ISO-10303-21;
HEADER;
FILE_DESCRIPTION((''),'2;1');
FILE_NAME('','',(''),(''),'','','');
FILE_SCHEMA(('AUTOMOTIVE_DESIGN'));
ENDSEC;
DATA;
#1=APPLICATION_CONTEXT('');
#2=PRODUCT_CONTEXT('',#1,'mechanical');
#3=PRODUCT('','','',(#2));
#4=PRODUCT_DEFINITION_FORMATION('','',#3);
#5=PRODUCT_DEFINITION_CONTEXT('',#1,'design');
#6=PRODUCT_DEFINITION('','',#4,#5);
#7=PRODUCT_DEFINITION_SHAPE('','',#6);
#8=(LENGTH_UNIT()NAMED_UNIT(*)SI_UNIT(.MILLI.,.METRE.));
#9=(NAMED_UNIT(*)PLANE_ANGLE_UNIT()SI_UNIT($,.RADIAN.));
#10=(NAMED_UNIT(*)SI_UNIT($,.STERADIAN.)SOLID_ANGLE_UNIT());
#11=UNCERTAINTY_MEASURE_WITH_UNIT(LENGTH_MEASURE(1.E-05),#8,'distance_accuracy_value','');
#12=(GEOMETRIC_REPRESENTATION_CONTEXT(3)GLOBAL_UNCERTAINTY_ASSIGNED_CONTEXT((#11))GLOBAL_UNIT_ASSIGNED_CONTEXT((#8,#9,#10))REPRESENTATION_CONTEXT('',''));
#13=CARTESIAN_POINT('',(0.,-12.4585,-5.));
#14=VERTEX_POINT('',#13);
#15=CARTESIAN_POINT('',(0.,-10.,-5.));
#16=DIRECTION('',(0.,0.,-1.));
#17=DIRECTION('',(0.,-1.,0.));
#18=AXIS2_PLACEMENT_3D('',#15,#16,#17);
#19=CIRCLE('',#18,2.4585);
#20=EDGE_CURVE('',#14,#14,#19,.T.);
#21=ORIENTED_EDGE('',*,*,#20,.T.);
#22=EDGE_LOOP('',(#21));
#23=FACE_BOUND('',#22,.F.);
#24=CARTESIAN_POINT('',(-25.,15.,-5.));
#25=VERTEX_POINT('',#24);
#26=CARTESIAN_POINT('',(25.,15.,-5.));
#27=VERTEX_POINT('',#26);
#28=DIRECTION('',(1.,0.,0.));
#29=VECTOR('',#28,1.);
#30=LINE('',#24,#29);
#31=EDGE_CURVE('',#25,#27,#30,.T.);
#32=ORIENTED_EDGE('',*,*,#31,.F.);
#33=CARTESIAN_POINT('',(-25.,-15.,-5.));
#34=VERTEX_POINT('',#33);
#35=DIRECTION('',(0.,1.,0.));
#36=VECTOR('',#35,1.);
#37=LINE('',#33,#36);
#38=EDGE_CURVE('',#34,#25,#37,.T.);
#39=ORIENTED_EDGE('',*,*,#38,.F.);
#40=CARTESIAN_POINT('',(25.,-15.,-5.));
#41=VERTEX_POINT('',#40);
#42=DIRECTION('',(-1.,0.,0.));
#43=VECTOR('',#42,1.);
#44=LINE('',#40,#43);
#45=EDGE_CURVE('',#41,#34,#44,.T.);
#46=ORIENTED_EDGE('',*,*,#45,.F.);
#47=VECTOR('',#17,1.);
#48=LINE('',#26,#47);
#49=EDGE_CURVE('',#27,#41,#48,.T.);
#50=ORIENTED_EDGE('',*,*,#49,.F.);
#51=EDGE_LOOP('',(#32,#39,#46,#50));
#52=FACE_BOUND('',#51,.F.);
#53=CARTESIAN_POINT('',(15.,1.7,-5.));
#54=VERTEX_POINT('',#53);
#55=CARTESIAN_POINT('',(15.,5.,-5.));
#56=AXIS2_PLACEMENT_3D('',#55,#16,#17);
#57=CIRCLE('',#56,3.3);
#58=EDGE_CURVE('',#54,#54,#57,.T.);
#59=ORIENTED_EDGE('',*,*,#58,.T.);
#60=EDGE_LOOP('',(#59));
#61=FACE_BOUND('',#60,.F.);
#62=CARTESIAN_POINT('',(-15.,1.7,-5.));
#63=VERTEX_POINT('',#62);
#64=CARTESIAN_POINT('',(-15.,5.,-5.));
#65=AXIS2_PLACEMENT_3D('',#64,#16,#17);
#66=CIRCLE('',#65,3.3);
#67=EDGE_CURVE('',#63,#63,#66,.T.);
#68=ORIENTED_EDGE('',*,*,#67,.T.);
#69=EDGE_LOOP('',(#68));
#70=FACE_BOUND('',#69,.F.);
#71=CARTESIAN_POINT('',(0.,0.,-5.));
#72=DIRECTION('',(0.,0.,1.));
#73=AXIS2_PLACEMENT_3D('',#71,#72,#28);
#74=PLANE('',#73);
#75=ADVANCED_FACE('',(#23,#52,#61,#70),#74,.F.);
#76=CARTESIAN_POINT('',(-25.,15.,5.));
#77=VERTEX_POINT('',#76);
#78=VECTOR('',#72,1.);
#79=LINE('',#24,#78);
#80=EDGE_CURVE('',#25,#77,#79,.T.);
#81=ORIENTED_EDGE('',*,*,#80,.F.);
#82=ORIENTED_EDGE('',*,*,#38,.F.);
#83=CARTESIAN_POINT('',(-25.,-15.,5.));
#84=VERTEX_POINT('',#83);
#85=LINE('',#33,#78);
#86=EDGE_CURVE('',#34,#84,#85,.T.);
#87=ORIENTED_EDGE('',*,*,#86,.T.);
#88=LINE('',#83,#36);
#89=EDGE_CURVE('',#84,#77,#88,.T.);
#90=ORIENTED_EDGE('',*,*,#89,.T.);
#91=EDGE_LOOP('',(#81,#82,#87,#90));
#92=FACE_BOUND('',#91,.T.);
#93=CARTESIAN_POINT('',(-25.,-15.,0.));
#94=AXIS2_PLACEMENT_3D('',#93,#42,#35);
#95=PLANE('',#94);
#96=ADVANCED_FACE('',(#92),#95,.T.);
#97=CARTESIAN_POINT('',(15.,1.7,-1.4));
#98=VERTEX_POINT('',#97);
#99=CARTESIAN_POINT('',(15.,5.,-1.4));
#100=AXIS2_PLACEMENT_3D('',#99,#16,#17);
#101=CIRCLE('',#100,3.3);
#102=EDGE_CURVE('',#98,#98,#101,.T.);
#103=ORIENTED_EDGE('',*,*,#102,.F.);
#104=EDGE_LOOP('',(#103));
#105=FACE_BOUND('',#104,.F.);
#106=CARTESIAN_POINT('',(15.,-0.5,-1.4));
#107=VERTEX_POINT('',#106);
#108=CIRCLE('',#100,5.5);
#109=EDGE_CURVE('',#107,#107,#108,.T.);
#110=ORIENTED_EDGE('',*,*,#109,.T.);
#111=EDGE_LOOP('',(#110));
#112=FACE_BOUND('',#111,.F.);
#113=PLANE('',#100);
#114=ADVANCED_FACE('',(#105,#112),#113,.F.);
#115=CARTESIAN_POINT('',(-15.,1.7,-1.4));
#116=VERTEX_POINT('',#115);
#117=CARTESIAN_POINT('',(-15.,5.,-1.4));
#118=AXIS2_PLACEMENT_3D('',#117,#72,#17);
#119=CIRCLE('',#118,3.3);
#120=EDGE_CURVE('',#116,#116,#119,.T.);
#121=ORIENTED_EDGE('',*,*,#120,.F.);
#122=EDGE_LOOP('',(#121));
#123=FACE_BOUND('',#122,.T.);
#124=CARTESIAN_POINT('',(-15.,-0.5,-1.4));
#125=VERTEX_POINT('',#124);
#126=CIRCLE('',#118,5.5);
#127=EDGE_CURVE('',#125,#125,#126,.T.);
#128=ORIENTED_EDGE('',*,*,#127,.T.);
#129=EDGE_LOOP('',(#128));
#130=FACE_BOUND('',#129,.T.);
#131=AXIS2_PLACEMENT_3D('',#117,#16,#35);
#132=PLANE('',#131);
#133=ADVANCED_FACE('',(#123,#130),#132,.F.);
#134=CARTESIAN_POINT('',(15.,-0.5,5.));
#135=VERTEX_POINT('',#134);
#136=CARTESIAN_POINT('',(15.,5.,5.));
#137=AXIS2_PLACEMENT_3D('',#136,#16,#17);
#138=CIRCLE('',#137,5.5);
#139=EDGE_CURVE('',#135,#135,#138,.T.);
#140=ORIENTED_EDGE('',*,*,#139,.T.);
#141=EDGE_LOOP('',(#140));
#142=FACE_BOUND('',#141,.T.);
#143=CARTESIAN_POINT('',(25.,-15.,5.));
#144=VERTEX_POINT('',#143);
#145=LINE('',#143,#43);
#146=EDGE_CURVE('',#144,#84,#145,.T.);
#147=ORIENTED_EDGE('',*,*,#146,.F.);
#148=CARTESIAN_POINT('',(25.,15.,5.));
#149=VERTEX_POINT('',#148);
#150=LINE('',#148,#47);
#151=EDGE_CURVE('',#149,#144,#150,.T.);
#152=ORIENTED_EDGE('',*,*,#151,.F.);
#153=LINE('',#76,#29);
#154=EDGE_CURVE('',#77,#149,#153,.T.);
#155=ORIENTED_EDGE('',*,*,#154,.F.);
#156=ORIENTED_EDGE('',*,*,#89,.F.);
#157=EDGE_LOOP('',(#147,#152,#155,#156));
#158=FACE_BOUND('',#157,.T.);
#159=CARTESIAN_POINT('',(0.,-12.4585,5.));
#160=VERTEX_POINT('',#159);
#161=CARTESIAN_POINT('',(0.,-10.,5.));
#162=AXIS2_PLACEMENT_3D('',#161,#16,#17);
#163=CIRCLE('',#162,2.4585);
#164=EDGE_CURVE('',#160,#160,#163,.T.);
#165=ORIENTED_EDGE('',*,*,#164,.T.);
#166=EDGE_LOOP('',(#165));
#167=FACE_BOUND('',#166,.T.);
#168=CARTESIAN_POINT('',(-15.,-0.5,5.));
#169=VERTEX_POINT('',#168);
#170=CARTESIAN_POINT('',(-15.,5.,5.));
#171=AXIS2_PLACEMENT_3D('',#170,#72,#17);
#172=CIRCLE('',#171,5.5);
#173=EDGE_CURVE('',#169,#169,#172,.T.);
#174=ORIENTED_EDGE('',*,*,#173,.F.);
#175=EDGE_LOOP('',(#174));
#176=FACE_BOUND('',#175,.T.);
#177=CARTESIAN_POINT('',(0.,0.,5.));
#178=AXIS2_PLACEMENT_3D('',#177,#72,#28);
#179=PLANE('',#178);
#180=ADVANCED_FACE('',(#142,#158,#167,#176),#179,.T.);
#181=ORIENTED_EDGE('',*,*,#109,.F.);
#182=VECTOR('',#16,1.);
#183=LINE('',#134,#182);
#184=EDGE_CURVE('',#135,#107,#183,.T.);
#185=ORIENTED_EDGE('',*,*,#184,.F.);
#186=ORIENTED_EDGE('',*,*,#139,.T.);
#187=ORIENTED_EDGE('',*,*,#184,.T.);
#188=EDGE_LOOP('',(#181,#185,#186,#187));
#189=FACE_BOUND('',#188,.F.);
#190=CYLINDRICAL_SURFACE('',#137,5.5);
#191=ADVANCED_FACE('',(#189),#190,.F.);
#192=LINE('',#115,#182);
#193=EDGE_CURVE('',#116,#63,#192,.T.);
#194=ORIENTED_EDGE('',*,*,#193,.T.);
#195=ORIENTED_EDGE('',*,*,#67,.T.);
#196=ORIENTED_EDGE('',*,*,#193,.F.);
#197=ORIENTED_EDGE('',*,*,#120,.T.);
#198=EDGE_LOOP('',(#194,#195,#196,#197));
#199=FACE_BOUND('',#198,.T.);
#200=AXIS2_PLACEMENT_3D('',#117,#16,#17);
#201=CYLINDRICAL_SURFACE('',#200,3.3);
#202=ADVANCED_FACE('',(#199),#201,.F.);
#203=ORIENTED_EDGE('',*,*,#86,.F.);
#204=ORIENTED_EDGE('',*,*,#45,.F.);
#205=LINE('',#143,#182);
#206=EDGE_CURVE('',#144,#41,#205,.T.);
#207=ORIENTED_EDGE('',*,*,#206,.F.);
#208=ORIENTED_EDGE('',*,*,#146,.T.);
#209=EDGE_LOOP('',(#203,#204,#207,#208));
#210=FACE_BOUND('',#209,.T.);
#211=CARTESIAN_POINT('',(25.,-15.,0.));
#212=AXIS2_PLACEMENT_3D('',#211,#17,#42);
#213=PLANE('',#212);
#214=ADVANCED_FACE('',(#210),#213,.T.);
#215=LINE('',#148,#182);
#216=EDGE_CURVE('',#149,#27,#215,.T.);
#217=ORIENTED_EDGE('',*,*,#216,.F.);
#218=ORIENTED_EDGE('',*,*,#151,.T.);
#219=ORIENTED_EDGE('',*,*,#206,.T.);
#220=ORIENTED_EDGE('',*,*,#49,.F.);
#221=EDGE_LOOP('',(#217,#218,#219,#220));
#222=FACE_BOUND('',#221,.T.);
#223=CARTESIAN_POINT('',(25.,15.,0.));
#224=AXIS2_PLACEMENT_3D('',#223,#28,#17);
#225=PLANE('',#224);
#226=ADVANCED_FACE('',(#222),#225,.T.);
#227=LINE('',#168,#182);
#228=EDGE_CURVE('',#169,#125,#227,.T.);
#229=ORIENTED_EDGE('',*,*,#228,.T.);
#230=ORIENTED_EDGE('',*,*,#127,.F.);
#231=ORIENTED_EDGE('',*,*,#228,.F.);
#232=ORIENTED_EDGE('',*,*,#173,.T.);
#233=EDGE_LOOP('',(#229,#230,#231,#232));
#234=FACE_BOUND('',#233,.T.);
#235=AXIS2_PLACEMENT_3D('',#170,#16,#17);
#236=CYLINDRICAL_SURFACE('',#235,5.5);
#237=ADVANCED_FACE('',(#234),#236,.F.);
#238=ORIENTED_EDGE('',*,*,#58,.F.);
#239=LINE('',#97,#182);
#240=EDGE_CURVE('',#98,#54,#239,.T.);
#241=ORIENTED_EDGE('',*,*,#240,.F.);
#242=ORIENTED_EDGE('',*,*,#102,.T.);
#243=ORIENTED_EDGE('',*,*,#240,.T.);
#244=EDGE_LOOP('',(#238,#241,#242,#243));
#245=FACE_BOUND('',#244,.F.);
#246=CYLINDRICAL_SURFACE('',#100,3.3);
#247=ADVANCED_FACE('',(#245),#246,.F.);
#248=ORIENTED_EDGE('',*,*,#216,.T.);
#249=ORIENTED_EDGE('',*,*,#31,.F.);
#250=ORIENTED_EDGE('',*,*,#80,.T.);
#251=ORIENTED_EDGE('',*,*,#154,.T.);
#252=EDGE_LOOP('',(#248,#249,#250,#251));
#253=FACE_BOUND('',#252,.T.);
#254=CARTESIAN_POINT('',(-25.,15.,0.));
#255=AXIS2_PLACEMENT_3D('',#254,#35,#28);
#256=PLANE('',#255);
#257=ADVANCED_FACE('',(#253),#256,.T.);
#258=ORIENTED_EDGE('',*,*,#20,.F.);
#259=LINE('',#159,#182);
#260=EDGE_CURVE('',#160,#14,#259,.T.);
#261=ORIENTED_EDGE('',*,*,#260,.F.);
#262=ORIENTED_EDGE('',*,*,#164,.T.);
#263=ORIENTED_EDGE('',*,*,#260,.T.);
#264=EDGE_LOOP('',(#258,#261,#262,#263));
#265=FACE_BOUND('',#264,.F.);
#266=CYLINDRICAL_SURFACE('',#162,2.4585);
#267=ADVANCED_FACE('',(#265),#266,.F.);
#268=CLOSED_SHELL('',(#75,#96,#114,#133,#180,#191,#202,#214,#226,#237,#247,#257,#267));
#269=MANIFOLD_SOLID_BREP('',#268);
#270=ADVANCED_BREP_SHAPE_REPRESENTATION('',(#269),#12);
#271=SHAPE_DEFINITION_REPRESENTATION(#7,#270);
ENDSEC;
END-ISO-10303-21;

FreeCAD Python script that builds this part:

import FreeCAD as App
import Part
import Sketcher
from FreeCAD import Vector
Q = App.Units.Quantity


def add_polygon(sketch, points):
    """Adds a closed chain of lines whose ends are joined by coincident constraints."""
    first, n = sketch.GeometryCount, len(points)
    for a, b in zip(points, points[1:] + points[:1]):
        sketch.addGeometry(Part.LineSegment(App.Vector(*a, 0), App.Vector(*b, 0)), False)
    for i in range(n):
        sketch.addConstraint(Sketcher.Constraint("Coincident", first + i, 2, first + (i + 1) % n, 1))

doc = App.newDocument("Part")
body = doc.addObject("PartDesign::Body", "Body")

sketch1 = body.newObject("Sketcher::SketchObject", "Sketch")
sketch1.AttachmentSupport = (doc.getObject("XY_Plane"), [""])
sketch1.MapMode = "FlatFace"
add_polygon(sketch1, [(25, 15), (-25, 15), (-25, -15), (25, -15)])
sketch1.addConstraint(Sketcher.Constraint("Horizontal", 0))
sketch1.addConstraint(Sketcher.Constraint("Vertical", 1))
sketch1.addConstraint(Sketcher.Constraint("Horizontal", 2))
sketch1.addConstraint(Sketcher.Constraint("Vertical", 3))
sketch1.addConstraint(Sketcher.Constraint("Symmetric", 0, 2, 2, 2, -1, 1))
sketch1.addConstraint(Sketcher.Constraint("DistanceX", 0, 2, 0, 1, Q("50 mm")))
sketch1.addConstraint(Sketcher.Constraint("DistanceY", 1, 2, 1, 1, Q("30 mm")))
pad1 = body.newObject("PartDesign::Pad", "Pad")
pad1.Profile = sketch1
pad1.Length = 10
pad1.Midplane = True

sketch2 = body.newObject("Sketcher::SketchObject", "Sketch001")
sketch2.AttachmentSupport = (doc.getObject("XY_Plane"), [""])
sketch2.MapMode = "FlatFace"
sketch2.AttachmentOffset = App.Placement(Vector(0, 0, 5), App.Rotation())
sketch2.addGeometry(Part.Circle(Vector(0, -10, 0), Vector(0, 0, 1), 2.5), False)
sketch2.addConstraint(Sketcher.Constraint("PointOnObject", 0, 3, -2))
sketch2.addConstraint(Sketcher.Constraint("Diameter", 0, Q("4.917 mm")))
sketch2.addConstraint(Sketcher.Constraint("DistanceY", 0, 3, -1, 1, Q("10 mm")))
doc.recompute()
hole = body.newObject("PartDesign::Hole", "Hole")
hole.Profile = sketch2
hole.ThreadType = "None"
hole.Diameter = 4.917
hole.DepthType = "ThroughAll"

sketch3 = body.newObject("Sketcher::SketchObject", "Sketch002")
sketch3.AttachmentSupport = (doc.getObject("XY_Plane"), [""])
sketch3.MapMode = "FlatFace"
sketch3.AttachmentOffset = App.Placement(Vector(0, 0, 5), App.Rotation())
sketch3.addGeometry(Part.Circle(Vector(15, 5, 0), Vector(0, 0, 1), 3.3), False)
sketch3.addConstraint(Sketcher.Constraint("Diameter", 0, Q("6.6 mm")))
sketch3.addConstraint(Sketcher.Constraint("DistanceX", -1, 1, 0, 3, Q("15 mm")))
sketch3.addConstraint(Sketcher.Constraint("DistanceY", -1, 1, 0, 3, Q("5 mm")))
doc.recompute()
hole2 = body.newObject("PartDesign::Hole", "Hole001")
hole2.Profile = sketch3
hole2.ThreadType = "None"
hole2.Diameter = 6.6
hole2.DepthType = "ThroughAll"
hole2.HoleCutType = "Counterbore"
hole2.HoleCutDiameter = 11
hole2.HoleCutDepth = 6.4
doc.recompute()

mirrored = body.newObject("PartDesign::Mirrored", "Mirrored")
mirrored.Originals = [hole2]
mirrored.MirrorPlane = (doc.getObject("YZ_Plane"), [""])
body.Tip = mirrored

doc.recompute()
